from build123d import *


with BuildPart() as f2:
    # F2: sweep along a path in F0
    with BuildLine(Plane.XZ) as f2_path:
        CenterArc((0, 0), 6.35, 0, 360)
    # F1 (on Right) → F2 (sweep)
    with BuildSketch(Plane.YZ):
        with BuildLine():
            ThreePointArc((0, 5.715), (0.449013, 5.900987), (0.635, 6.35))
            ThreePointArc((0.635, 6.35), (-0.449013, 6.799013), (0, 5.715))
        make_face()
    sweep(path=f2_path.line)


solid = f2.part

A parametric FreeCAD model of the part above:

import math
import FreeCAD as App
import Part
import Sketcher

V = App.Vector
Q = App.Units.Quantity

doc = App.newDocument("Part")
params = doc.addObject("Spreadsheet::Sheet", "Params")
for row, (alias, value) in enumerate([
    ("sketch1_radius", "0.025 in"),
    ("sketch2_diameter", "0.5 in"),
], start=1):
    params.set(f"A{row}", alias)
    params.set(f"B{row}", "=" + value)
    params.setAlias(f"B{row}", alias)

body = doc.addObject("PartDesign::Body", "Body")

sketch1 = body.newObject("Sketcher::SketchObject", "Sketch")
sketch1.AttachmentSupport = (doc.getObject("YZ_Plane"), [""])
sketch1.MapMode = "FlatFace"
sketch1.addGeometry(Part.ArcOfCircle(Part.Circle(V(0.000001, 6.349999, 0), V(0, 0, 1), 0.634999), math.radians(-90.00006), math.radians(0.00006)), False)
sketch1.addGeometry(Part.ArcOfCircle(Part.Circle(V(0, 6.35, 0), V(0, 0, 1), 0.635), math.radians(-0.00001), math.radians(270.00001)), False)
sketch1.addConstraint(Sketcher.Constraint("Tangent", 0, 1, 1, 2))
sketch1.addConstraint(Sketcher.Constraint("Coincident", 1, 1, 0, 2))
sketch1.addConstraint(Sketcher.Constraint("PointOnObject", 0, 3, -2))
sketch1.addConstraint(Sketcher.Constraint("PointOnObject", 0, 1, -2))
sketch1.addConstraint(Sketcher.Constraint("Horizontal", 0, 3, 1, 1))
sketch1.addConstraint(Sketcher.Constraint("Radius", 0, Q("0.025 in")))
sketch1.addConstraint(Sketcher.Constraint("DistanceY", -1, 1, 0, 3, Q("0.25 in")))
sketch1.setExpression("Constraints[5]", "Params.sketch1_radius")

sketch2 = body.newObject("Sketcher::SketchObject", "Sketch001")
sketch2.AttachmentSupport = (doc.getObject("XZ_Plane"), [""])
sketch2.MapMode = "FlatFace"
sketch2.addGeometry(Part.Circle(V(0, 0, 0), V(0, 0, 1), 6.35), False)
sketch2.addConstraint(Sketcher.Constraint("Coincident", 0, 3, -1, 1))
sketch2.addConstraint(Sketcher.Constraint("Diameter", 0, Q("0.5 in")))
sketch2.setExpression("Constraints[1]", "Params.sketch2_diameter")
doc.recompute()

additivepipe = body.newObject("PartDesign::AdditivePipe", "AdditivePipe")
additivepipe.Profile = sketch1
additivepipe.Spine = (sketch2, ["Edge1"])

doc.recompute()
